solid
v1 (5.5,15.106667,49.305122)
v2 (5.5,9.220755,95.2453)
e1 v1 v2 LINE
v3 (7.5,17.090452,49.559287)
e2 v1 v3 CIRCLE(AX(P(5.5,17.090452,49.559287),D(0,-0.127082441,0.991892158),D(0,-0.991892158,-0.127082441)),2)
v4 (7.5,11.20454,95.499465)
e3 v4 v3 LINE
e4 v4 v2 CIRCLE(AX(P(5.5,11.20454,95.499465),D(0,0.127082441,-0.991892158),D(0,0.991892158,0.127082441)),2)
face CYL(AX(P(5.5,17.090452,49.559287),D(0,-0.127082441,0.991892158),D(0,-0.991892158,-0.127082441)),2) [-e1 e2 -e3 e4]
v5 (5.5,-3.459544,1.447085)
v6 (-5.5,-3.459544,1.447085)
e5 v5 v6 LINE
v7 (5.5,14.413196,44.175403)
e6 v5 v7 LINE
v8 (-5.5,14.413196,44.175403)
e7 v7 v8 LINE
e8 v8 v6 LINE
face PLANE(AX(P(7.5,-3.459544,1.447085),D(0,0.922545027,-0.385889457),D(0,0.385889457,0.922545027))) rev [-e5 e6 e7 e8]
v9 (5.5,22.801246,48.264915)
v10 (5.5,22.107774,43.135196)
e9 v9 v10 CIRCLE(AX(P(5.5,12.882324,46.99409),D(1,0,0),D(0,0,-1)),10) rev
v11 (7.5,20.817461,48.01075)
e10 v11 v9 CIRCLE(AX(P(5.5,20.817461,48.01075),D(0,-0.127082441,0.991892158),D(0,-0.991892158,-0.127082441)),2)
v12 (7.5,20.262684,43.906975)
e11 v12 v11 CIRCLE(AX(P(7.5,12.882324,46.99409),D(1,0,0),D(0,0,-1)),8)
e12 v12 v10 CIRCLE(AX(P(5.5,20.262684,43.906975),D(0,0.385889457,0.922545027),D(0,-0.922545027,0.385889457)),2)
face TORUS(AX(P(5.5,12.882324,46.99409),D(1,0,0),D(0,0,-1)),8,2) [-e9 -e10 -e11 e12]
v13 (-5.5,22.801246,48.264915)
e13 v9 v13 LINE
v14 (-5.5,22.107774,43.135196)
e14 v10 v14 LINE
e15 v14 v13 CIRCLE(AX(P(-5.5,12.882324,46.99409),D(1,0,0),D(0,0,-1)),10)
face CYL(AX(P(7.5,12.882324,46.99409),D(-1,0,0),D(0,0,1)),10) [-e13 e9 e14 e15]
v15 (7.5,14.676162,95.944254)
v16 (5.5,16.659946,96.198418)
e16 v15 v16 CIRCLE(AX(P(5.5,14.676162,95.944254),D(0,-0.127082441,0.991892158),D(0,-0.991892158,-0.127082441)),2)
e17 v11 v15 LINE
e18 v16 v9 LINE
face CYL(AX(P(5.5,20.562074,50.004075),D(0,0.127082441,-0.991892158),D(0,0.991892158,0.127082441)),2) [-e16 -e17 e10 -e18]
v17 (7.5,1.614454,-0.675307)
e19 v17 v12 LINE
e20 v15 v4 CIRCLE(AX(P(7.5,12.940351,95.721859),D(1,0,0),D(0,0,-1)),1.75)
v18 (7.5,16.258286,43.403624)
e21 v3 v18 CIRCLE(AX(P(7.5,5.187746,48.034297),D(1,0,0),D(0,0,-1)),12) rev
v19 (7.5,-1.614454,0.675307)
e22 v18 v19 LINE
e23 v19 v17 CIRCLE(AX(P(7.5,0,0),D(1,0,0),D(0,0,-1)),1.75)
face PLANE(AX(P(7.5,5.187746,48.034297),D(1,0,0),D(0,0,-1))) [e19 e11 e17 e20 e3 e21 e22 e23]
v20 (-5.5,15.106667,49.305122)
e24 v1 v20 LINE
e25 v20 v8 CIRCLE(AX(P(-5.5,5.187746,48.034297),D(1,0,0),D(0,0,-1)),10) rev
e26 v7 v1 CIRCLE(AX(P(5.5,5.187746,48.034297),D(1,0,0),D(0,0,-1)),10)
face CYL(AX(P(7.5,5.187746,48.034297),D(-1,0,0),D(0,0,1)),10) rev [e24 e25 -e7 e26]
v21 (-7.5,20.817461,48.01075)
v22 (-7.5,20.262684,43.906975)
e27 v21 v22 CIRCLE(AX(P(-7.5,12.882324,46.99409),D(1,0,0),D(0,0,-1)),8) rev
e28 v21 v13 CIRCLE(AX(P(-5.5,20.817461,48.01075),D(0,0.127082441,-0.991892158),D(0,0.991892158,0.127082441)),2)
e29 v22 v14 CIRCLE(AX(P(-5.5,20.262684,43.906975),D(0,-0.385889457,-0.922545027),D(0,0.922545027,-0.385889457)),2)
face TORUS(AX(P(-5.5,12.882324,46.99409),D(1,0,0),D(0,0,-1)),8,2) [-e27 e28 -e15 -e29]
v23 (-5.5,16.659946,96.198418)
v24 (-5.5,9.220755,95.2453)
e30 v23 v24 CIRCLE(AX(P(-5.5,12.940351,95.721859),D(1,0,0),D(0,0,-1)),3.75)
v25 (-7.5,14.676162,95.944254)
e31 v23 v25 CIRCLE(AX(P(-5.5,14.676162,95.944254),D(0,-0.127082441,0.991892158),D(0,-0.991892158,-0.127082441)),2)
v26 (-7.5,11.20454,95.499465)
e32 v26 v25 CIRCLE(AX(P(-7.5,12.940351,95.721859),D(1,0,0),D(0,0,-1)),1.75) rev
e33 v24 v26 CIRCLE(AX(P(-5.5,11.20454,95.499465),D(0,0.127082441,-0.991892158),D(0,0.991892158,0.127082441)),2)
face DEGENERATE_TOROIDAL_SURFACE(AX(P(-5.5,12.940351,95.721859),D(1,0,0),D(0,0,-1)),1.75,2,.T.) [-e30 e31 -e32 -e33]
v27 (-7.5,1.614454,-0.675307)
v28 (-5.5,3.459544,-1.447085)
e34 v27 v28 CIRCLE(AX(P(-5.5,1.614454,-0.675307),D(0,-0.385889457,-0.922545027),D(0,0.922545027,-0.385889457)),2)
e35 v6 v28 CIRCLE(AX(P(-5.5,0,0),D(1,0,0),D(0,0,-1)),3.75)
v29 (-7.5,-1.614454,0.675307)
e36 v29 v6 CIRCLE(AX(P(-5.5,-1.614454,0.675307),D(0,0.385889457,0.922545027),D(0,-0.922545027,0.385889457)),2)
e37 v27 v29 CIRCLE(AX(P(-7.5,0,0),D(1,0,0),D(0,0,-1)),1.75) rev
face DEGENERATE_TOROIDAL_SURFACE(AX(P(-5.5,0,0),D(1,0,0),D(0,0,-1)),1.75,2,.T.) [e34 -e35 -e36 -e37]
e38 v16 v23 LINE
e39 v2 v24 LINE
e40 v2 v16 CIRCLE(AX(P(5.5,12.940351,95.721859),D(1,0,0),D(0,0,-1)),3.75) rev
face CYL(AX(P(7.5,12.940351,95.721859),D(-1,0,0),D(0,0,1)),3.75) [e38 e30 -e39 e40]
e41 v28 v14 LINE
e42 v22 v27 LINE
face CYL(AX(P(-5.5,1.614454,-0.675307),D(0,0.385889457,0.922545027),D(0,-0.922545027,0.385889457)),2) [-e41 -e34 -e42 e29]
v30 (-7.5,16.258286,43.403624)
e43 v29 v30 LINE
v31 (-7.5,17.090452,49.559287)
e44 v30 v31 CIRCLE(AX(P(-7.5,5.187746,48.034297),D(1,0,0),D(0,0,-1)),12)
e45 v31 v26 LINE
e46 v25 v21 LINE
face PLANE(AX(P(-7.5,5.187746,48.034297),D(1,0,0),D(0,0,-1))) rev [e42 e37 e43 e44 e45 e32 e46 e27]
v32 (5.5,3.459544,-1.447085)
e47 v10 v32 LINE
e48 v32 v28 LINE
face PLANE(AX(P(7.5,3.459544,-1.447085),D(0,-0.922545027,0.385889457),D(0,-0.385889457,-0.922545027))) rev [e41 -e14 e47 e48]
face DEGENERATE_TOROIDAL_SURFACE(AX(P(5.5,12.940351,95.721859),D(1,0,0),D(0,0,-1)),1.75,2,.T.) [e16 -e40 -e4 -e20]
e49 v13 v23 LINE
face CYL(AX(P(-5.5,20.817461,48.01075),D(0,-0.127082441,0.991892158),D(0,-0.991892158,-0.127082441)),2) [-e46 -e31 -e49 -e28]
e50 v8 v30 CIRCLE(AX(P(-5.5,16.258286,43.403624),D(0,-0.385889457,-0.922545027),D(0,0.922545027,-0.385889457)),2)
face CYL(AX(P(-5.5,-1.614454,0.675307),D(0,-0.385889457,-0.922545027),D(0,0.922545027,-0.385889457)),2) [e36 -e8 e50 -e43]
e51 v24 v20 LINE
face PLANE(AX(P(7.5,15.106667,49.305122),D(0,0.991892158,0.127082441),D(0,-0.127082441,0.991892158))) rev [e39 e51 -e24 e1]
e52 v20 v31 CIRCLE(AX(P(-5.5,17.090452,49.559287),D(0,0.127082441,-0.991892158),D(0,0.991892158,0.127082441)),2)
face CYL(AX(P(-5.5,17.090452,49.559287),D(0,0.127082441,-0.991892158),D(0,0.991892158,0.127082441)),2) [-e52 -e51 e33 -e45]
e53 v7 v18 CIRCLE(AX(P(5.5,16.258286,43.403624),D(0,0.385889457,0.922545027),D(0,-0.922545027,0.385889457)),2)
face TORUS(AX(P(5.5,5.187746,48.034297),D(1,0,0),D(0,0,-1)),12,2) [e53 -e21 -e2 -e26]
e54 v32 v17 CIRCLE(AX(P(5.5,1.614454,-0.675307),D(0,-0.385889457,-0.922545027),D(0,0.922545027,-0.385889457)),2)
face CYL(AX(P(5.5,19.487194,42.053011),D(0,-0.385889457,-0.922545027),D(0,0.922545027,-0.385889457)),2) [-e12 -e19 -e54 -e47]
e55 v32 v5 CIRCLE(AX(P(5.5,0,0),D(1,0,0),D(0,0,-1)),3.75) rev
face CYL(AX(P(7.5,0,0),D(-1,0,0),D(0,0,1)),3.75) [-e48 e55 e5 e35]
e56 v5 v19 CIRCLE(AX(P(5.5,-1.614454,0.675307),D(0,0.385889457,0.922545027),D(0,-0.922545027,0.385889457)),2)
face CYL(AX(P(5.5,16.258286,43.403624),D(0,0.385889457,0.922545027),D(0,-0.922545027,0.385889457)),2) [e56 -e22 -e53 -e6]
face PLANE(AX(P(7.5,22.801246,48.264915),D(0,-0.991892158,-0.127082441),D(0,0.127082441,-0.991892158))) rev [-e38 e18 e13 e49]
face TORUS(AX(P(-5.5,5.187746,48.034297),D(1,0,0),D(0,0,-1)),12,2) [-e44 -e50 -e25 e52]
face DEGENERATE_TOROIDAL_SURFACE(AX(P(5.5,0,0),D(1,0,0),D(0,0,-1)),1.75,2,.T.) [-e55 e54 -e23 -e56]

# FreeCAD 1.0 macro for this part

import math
import FreeCAD as App
import Part
import Sketcher
Q = App.Units.Quantity


def edges_at(feature, points):
    """Names of the edges that pass closest to the given points."""
    edges = feature.Shape.Edges
    near = lambda p: min(range(len(edges)), key=lambda i: edges[i].distToShape(Part.Vertex(*p))[0])
    return sorted({f"Edge{near(p) + 1}" for p in points})

doc = App.newDocument("Part")
body = doc.addObject("PartDesign::Body", "Body")

# Sketch on YZ plane
sketch1 = body.newObject("Sketcher::SketchObject", "Sketch")
sketch1.AttachmentSupport = (doc.getObject("YZ_Plane"), [""])
sketch1.MapMode = "FlatFace"
sketch1.addGeometry(Part.LineSegment(App.Vector(3.459544, -1.447085, 0), App.Vector(22.107774, 43.135196, 0)), False)
sketch1.addGeometry(Part.ArcOfCircle(Part.Circle(App.Vector(12.882324, 46.99409, 0), App.Vector(0, 0, 1), 10), math.radians(-22.69897), math.radians(7.30103)), False)
sketch1.addGeometry(Part.LineSegment(App.Vector(22.801246, 48.264915, 0), App.Vector(16.659946, 96.198418, 0)), False)
sketch1.addGeometry(Part.ArcOfCircle(Part.Circle(App.Vector(12.940351, 95.721859, 0), App.Vector(0, 0, 1), 3.75), math.radians(7.30103), math.radians(187.30103)), False)
sketch1.addGeometry(Part.LineSegment(App.Vector(9.220755, 95.2453, 0), App.Vector(15.106667, 49.305122, 0)), False)
sketch1.addGeometry(Part.ArcOfCircle(Part.Circle(App.Vector(5.187746, 48.034297, 0), App.Vector(0, 0, 1), 10), math.radians(-22.69897), math.radians(7.30103)), False)
sketch1.addGeometry(Part.LineSegment(App.Vector(14.413196, 44.175403, 0), App.Vector(-3.459544, 1.447085, 0)), False)
sketch1.addGeometry(Part.ArcOfCircle(Part.Circle(App.Vector(0, 0, 0), App.Vector(0, 0, 1), 3.75), math.radians(157.30103), math.radians(337.30103)), False)
sketch1.addConstraint(Sketcher.Constraint("Tangent", 0, 2, 1, 1))
sketch1.addConstraint(Sketcher.Constraint("Tangent", 1, 2, 2, 1))
sketch1.addConstraint(Sketcher.Constraint("Tangent", 2, 2, 3, 1))
sketch1.addConstraint(Sketcher.Constraint("Tangent", 3, 2, 4, 1))
sketch1.addConstraint(Sketcher.Constraint("Tangent", 4, 2, 5, 2))
sketch1.addConstraint(Sketcher.Constraint("Tangent", 5, 1, 6, 1))
sketch1.addConstraint(Sketcher.Constraint("Tangent", 6, 2, 7, 1))
sketch1.addConstraint(Sketcher.Constraint("Tangent", 7, 2, 0, 1))
sketch1.addConstraint(Sketcher.Constraint("Coincident", 7, 3, -1, 1))
sketch1.addConstraint(Sketcher.Constraint("Equal", 1, 5))
sketch1.addConstraint(Sketcher.Constraint("Equal", 3, 7))
sketch1.addConstraint(Sketcher.Constraint("Parallel", 2, 4))
sketch1.addConstraint(Sketcher.Constraint("Parallel", 0, 6))
sketch1.addConstraint(Sketcher.Constraint("Equal", 0, 2))
sketch1.addConstraint(Sketcher.Constraint("Radius", 1, Q("10 mm")))
sketch1.addConstraint(Sketcher.Constraint("Radius", 3, Q("3.75 mm")))
sketch1.addConstraint(Sketcher.Constraint("Distance", 4, Q("46.315699 mm")))
sketch1.addConstraint(Sketcher.Constraint("DistanceY", -1, 1, 3, 2, Q("95.2453 mm")))
sketch1.addConstraint(Sketcher.Constraint("DistanceY", 0, 2, 5, 3, Q("4.899102 mm")))
pad1 = body.newObject("PartDesign::Pad", "Pad")
pad1.Profile = sketch1
pad1.Length = 15
pad1.Midplane = True
doc.recompute()

fillet = body.newObject("PartDesign::Fillet", "Fillet")
fillet.Base = (pad1, edges_at(pad1, [
    (-7.5, 12.784, 20.844),
    (-7.5, -1.447, -3.46),
    (-7.5, 5.477, 22.811),
    (-7.5, 15.098, 46.695),
    (7.5, -1.447, -3.46),
    (7.5, 12.784, 20.844),
    (7.5, 22.792, 45.654),
    (7.5, 19.731, 72.232),
    (7.5, 12.464, 99.441),
    (7.5, 12.164, 72.275),
    (7.5, 15.098, 46.695),
    (-7.5, 12.164, 72.275),
    (7.5, 5.477, 22.811),
    (-7.5, 12.464, 99.441),
    (-7.5, 19.731, 72.232),
    (-7.5, 22.792, 45.654),
]))
fillet.Radius = 2

doc.recompute()
